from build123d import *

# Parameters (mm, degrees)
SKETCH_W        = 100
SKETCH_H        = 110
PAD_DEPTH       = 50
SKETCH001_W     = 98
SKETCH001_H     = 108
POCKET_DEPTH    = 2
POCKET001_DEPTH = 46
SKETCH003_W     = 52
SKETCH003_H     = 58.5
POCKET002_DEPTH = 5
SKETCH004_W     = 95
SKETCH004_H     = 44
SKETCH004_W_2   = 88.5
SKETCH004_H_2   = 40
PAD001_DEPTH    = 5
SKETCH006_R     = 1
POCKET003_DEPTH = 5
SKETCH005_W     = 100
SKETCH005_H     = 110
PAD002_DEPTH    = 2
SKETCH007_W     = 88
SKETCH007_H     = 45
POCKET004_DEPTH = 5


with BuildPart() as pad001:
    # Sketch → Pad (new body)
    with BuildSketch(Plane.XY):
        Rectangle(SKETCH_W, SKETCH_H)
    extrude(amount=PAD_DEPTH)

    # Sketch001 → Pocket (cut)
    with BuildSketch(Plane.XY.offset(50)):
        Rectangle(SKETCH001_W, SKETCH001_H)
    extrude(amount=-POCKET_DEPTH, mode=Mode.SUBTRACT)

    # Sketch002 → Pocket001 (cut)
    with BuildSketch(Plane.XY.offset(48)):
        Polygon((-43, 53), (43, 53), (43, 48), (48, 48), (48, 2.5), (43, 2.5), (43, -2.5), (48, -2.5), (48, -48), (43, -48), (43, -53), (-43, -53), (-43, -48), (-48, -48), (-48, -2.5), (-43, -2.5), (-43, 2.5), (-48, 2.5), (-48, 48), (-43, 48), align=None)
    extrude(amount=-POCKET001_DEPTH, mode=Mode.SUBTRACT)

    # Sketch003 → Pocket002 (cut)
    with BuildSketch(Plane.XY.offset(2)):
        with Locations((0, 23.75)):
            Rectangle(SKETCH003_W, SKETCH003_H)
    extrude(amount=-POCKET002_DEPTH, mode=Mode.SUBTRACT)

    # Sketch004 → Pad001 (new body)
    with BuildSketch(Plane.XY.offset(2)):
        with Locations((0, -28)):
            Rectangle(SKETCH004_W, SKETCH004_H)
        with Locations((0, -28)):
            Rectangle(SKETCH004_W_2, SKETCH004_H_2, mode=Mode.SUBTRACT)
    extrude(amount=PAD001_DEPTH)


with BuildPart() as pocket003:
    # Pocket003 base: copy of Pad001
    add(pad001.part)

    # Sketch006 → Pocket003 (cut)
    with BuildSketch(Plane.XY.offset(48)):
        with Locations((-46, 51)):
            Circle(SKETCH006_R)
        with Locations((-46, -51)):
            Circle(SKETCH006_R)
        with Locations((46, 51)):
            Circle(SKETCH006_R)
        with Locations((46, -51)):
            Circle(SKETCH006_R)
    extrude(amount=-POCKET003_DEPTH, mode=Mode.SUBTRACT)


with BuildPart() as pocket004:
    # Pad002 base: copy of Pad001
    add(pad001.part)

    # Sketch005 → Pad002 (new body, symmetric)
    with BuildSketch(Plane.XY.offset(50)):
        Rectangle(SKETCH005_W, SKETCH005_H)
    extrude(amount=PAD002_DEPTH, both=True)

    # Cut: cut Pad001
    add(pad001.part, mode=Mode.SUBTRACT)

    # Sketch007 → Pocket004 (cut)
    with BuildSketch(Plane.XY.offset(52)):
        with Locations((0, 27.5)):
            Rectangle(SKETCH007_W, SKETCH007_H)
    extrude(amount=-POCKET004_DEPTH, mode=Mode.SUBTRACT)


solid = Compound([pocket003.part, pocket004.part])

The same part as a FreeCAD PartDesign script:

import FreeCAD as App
import Part
import Sketcher

doc = App.newDocument("Part")
body = doc.addObject("PartDesign::Body", "Body")

# Sketch on XY plane
sketch1 = body.newObject("Sketcher::SketchObject", "Sketch")
sketch1.AttachmentSupport = (doc.getObject("XY_Plane"), [""])
sketch1.MapMode = "FlatFace"
sketch1.addGeometry([
    Part.LineSegment(App.Vector(-50, 55, 0), App.Vector(-50, -55, 0)),
    Part.LineSegment(App.Vector(-50, -55, 0), App.Vector(50, -55, 0)),
    Part.LineSegment(App.Vector(50, -55, 0), App.Vector(50, 55, 0)),
    Part.LineSegment(App.Vector(50, 55, 0), App.Vector(-50, 55, 0)),
], False)
sketch1.addConstraint([
    Sketcher.Constraint("Coincident", 0, 2, 1, 1),
    Sketcher.Constraint("Coincident", 1, 2, 2, 1),
    Sketcher.Constraint("Coincident", 2, 2, 3, 1),
    Sketcher.Constraint("Coincident", 3, 2, 0, 1),
    Sketcher.Constraint("Vertical", 0),
    Sketcher.Constraint("Horizontal", 1),
    Sketcher.Constraint("Vertical", 2),
    Sketcher.Constraint("Horizontal", 3),
    Sketcher.Constraint("Symmetric", 0, 2, 2, 2, -1, 1),
    Sketcher.Constraint("DistanceX", 1, 1, 1, 2, 100.0),
    Sketcher.Constraint("DistanceY", 0, 2, 0, 1, 110.0),
])
pad1 = body.newObject("PartDesign::Pad", "Pad")
pad1.Profile = sketch1
pad1.Length = 50

# Sketch on XY plane
sketch2 = body.newObject("Sketcher::SketchObject", "Sketch001")
sketch2.AttachmentSupport = (doc.getObject("XY_Plane"), [""])
sketch2.MapMode = "FlatFace"
sketch2.AttachmentOffset = App.Placement(App.Vector(0, 0, 50), App.Rotation())
sketch2.addGeometry([
    Part.LineSegment(App.Vector(-49, 54, 0), App.Vector(-49, -54, 0)),
    Part.LineSegment(App.Vector(-49, -54, 0), App.Vector(49, -54, 0)),
    Part.LineSegment(App.Vector(49, -54, 0), App.Vector(49, 54, 0)),
    Part.LineSegment(App.Vector(49, 54, 0), App.Vector(-49, 54, 0)),
], False)
sketch2.addConstraint([
    Sketcher.Constraint("Coincident", 0, 2, 1, 1),
    Sketcher.Constraint("Coincident", 1, 2, 2, 1),
    Sketcher.Constraint("Coincident", 2, 2, 3, 1),
    Sketcher.Constraint("Coincident", 3, 2, 0, 1),
    Sketcher.Constraint("Vertical", 0),
    Sketcher.Constraint("Horizontal", 1),
    Sketcher.Constraint("Vertical", 2),
    Sketcher.Constraint("Horizontal", 3),
    Sketcher.Constraint("Symmetric", 0, 2, 2, 2, -1, 1),
    Sketcher.Constraint("DistanceX", 1, 1, 1, 2, 98.0),
    Sketcher.Constraint("DistanceY", 0, 2, 0, 1, 108.0),
])
pocket1 = body.newObject("PartDesign::Pocket", "Pocket")
pocket1.Profile = sketch2
pocket1.Length = 2

# Sketch on XY plane
sketch3 = body.newObject("Sketcher::SketchObject", "Sketch002")
sketch3.AttachmentSupport = (doc.getObject("XY_Plane"), [""])
sketch3.MapMode = "FlatFace"
sketch3.AttachmentOffset = App.Placement(App.Vector(0, 0, 48), App.Rotation())
sketch3.addGeometry([
    Part.LineSegment(App.Vector(43, 53, 0), App.Vector(-43, 53, 0)),  # 0
    Part.LineSegment(App.Vector(-43, 53, 0), App.Vector(-43, 48, 0)),  # 1
    Part.LineSegment(App.Vector(-43, 48, 0), App.Vector(-48, 48, 0)),  # 2
    Part.LineSegment(App.Vector(-48, 48, 0), App.Vector(-48, 2.5, 0)),  # 3
    Part.LineSegment(App.Vector(-48, 2.5, 0), App.Vector(-43, 2.5, 0)),  # 4
    Part.LineSegment(App.Vector(-43, 2.5, 0), App.Vector(-43, -2.5, 0)),  # 5
    Part.LineSegment(App.Vector(-43, -2.5, 0), App.Vector(-48, -2.5, 0)),  # 6
    Part.LineSegment(App.Vector(-48, -2.5, 0), App.Vector(-48, -48, 0)),  # 7
    Part.LineSegment(App.Vector(-48, -48, 0), App.Vector(-43, -48, 0)),  # 8
    Part.LineSegment(App.Vector(-43, -48, 0), App.Vector(-43, -53, 0)),  # 9
    Part.LineSegment(App.Vector(-43, -53, 0), App.Vector(43, -53, 0)),  # 10
    Part.LineSegment(App.Vector(43, -53, 0), App.Vector(43, -48, 0)),  # 11
    Part.LineSegment(App.Vector(43, -48, 0), App.Vector(48, -48, 0)),  # 12
    Part.LineSegment(App.Vector(48, -48, 0), App.Vector(48, -2.5, 0)),  # 13
    Part.LineSegment(App.Vector(48, -2.5, 0), App.Vector(43, -2.5, 0)),  # 14
    Part.LineSegment(App.Vector(43, -2.5, 0), App.Vector(43, 2.5, 0)),  # 15
    Part.LineSegment(App.Vector(43, 2.5, 0), App.Vector(48, 2.5, 0)),  # 16
    Part.LineSegment(App.Vector(48, 2.5, 0), App.Vector(48, 48, 0)),  # 17
    Part.LineSegment(App.Vector(48, 48, 0), App.Vector(43, 48, 0)),  # 18
    Part.LineSegment(App.Vector(43, 48, 0), App.Vector(43, 53, 0)),  # 19
], False)
sketch3.addConstraint([
    Sketcher.Constraint("Coincident", 0, 2, 1, 1),
    Sketcher.Constraint("Coincident", 1, 2, 2, 1),
    Sketcher.Constraint("Coincident", 2, 2, 3, 1),
    Sketcher.Constraint("Coincident", 3, 2, 4, 1),
    Sketcher.Constraint("Coincident", 4, 2, 5, 1),
    Sketcher.Constraint("Coincident", 5, 2, 6, 1),
    Sketcher.Constraint("Coincident", 6, 2, 7, 1),
    Sketcher.Constraint("Coincident", 7, 2, 8, 1),
    Sketcher.Constraint("Coincident", 8, 2, 9, 1),
    Sketcher.Constraint("Coincident", 9, 2, 10, 1),
    Sketcher.Constraint("Coincident", 10, 2, 11, 1),
    Sketcher.Constraint("Coincident", 11, 2, 12, 1),
    Sketcher.Constraint("Coincident", 12, 2, 13, 1),
    Sketcher.Constraint("Coincident", 13, 2, 14, 1),
    Sketcher.Constraint("Coincident", 14, 2, 15, 1),
    Sketcher.Constraint("Coincident", 15, 2, 16, 1),
    Sketcher.Constraint("Coincident", 16, 2, 17, 1),
    Sketcher.Constraint("Coincident", 17, 2, 18, 1),
    Sketcher.Constraint("Coincident", 18, 2, 19, 1),
    Sketcher.Constraint("Coincident", 19, 2, 0, 1),
    Sketcher.Constraint("Horizontal", 0),
    Sketcher.Constraint("Vertical", 1),
    Sketcher.Constraint("Horizontal", 2),
    Sketcher.Constraint("Vertical", 3),
    Sketcher.Constraint("Horizontal", 4),
    Sketcher.Constraint("Vertical", 5),
    Sketcher.Constraint("Horizontal", 6),
    Sketcher.Constraint("Vertical", 7),
    Sketcher.Constraint("Horizontal", 8),
    Sketcher.Constraint("Vertical", 9),
    Sketcher.Constraint("Horizontal", 10),
    Sketcher.Constraint("Vertical", 11),
    Sketcher.Constraint("Horizontal", 12),
    Sketcher.Constraint("Vertical", 13),
    Sketcher.Constraint("Horizontal", 14),
    Sketcher.Constraint("Vertical", 15),
    Sketcher.Constraint("Horizontal", 16),
    Sketcher.Constraint("Vertical", 17),
    Sketcher.Constraint("Horizontal", 18),
    Sketcher.Constraint("Vertical", 19),
    Sketcher.Constraint("Symmetric", 0, 2, 10, 2, -1, 1),
    Sketcher.Constraint("Symmetric", 2, 2, 12, 2, -1, 1),
    Sketcher.Constraint("Symmetric", 4, 2, 14, 2, -1, 1),
    Sketcher.Constraint("Symmetric", 6, 2, 16, 2, -1, 1),
    Sketcher.Constraint("Symmetric", 8, 2, 18, 2, -1, 1),
    Sketcher.Constraint("Symmetric", 8, 2, 11, 2, -2),
    Sketcher.Constraint("Symmetric", 6, 2, 13, 2, -2),
    Sketcher.Constraint("Vertical", 1, 2, 4, 2),
    Sketcher.Constraint("Equal", 18, 1),
    Sketcher.Constraint("Equal", 1, 5),
    Sketcher.Constraint("DistanceX", 0, 2, 0, 1, 86.0),
    Sketcher.Constraint("DistanceX", 2, 2, 2, 1, 5.0),
    Sketcher.Constraint("DistanceY", 3, 2, 3, 1, 45.5),
])
pocket2 = body.newObject("PartDesign::Pocket", "Pocket001")
pocket2.Profile = sketch3
pocket2.Length = 46

# Sketch on XY plane
sketch4 = body.newObject("Sketcher::SketchObject", "Sketch003")
sketch4.AttachmentSupport = (doc.getObject("XY_Plane"), [""])
sketch4.MapMode = "FlatFace"
sketch4.AttachmentOffset = App.Placement(App.Vector(0, 0, 2), App.Rotation())
sketch4.addGeometry([
    Part.LineSegment(App.Vector(-26, 53, 0), App.Vector(-26, -5.5, 0)),
    Part.LineSegment(App.Vector(-26, -5.5, 0), App.Vector(26, -5.5, 0)),
    Part.LineSegment(App.Vector(26, -5.5, 0), App.Vector(26, 53, 0)),
    Part.LineSegment(App.Vector(26, 53, 0), App.Vector(-26, 53, 0)),
], False)
sketch4.addConstraint([
    Sketcher.Constraint("Coincident", 0, 2, 1, 1),
    Sketcher.Constraint("Coincident", 1, 2, 2, 1),
    Sketcher.Constraint("Coincident", 2, 2, 3, 1),
    Sketcher.Constraint("Coincident", 3, 2, 0, 1),
    Sketcher.Constraint("Vertical", 0),
    Sketcher.Constraint("Horizontal", 1),
    Sketcher.Constraint("Vertical", 2),
    Sketcher.Constraint("Horizontal", 3),
    Sketcher.Constraint("DistanceX", 1, 1, 1, 2, 52.0),
    Sketcher.Constraint("DistanceY", 0, 2, 0, 1, 58.5),
    Sketcher.Constraint("DistanceX", 0, 2, -1, 1, 26.0),
    Sketcher.Constraint("DistanceY", -1, 1, 2, 2, 53.0),
])
pocket3 = body.newObject("PartDesign::Pocket", "Pocket002")
pocket3.Profile = sketch4
pocket3.Length = 5

# Sketch on XY plane
sketch5 = body.newObject("Sketcher::SketchObject", "Sketch004")
sketch5.AttachmentSupport = (doc.getObject("XY_Plane"), [""])
sketch5.MapMode = "FlatFace"
sketch5.AttachmentOffset = App.Placement(App.Vector(0, 0, 2), App.Rotation())
sketch5.addGeometry([
    Part.LineSegment(App.Vector(-47.5, -6, 0), App.Vector(-47.5, -50, 0)),  # 0
    Part.LineSegment(App.Vector(-47.5, -50, 0), App.Vector(47.5, -50, 0)),  # 1
    Part.LineSegment(App.Vector(47.5, -50, 0), App.Vector(47.5, -6, 0)),  # 2
    Part.LineSegment(App.Vector(47.5, -6, 0), App.Vector(-47.5, -6, 0)),  # 3
    Part.LineSegment(App.Vector(44.25, -48, 0), App.Vector(-44.25, -48, 0)),  # 4
    Part.LineSegment(App.Vector(-44.25, -48, 0), App.Vector(-44.25, -8, 0)),  # 5
    Part.LineSegment(App.Vector(-44.25, -8, 0), App.Vector(44.25, -8, 0)),  # 6
    Part.LineSegment(App.Vector(44.25, -8, 0), App.Vector(44.25, -48, 0)),  # 7
], False)
sketch5.addConstraint([
    Sketcher.Constraint("Coincident", 0, 2, 1, 1),
    Sketcher.Constraint("Coincident", 1, 2, 2, 1),
    Sketcher.Constraint("Coincident", 2, 2, 3, 1),
    Sketcher.Constraint("Coincident", 3, 2, 0, 1),
    Sketcher.Constraint("Coincident", 4, 2, 5, 1),
    Sketcher.Constraint("Coincident", 5, 2, 6, 1),
    Sketcher.Constraint("Coincident", 6, 2, 7, 1),
    Sketcher.Constraint("Coincident", 7, 2, 4, 1),
    Sketcher.Constraint("Vertical", 0),
    Sketcher.Constraint("Horizontal", 1),
    Sketcher.Constraint("Vertical", 2),
    Sketcher.Constraint("Horizontal", 3),
    Sketcher.Constraint("Horizontal", 4),
    Sketcher.Constraint("Vertical", 5),
    Sketcher.Constraint("Horizontal", 6),
    Sketcher.Constraint("Vertical", 7),
    Sketcher.Constraint("DistanceX", 1, 1, 1, 2, 95.0),
    Sketcher.Constraint("DistanceY", 0, 2, 0, 1, 44.0),
    Sketcher.Constraint("DistanceY", 5, 1, 5, 2, 40.0),
    Sketcher.Constraint("DistanceX", 4, 2, 4, 1, 88.5),
    Sketcher.Constraint("DistanceY", 0, 2, -1, 1, 50.0),
    Sketcher.Constraint("DistanceY", 4, 2, -1, 1, 48.0),
    Sketcher.Constraint("DistanceX", 0, 2, -1, 1, 47.5),
    Sketcher.Constraint("DistanceX", 4, 2, -1, 1, 44.25),
])
pad2 = body.newObject("PartDesign::Pad", "Pad001")
pad2.Profile = sketch5
pad2.Length = 5
body2 = doc.addObject("PartDesign::Body", "Body001")
doc.recompute()

body2.BaseFeature = body
doc.recompute()

# Sketch on XY plane
sketch6 = body2.newObject("Sketcher::SketchObject", "Sketch005")
sketch6.AttachmentSupport = (doc.getObject("XY_Plane001"), [""])
sketch6.MapMode = "FlatFace"
sketch6.AttachmentOffset = App.Placement(App.Vector(0, 0, 48), App.Rotation())
sketch6.addGeometry([
    Part.Circle(App.Vector(-46, 51, 0), App.Vector(0, 0, 1), 1),
    Part.Circle(App.Vector(-46, -51, 0), App.Vector(0, 0, 1), 1),
    Part.Circle(App.Vector(46, 51, 0), App.Vector(0, 0, 1), 1),
    Part.Circle(App.Vector(46, -51, 0), App.Vector(0, 0, 1), 1),
], False)
sketch6.addConstraint([
    Sketcher.Constraint("Equal", 0, 1),
    Sketcher.Constraint("Equal", 1, 2),
    Sketcher.Constraint("Equal", 2, 3),
    Sketcher.Constraint("Symmetric", 1, 3, 2, 3, -1, 1),
    Sketcher.Constraint("Symmetric", 0, 3, 3, 3, -1, 1),
    Sketcher.Constraint("Symmetric", 0, 3, 2, 3, -2),
    Sketcher.Constraint("Diameter", 0, 2.0),
    Sketcher.Constraint("DistanceX", 0, 3, -1, 1, 46.0),
    Sketcher.Constraint("DistanceY", -1, 1, 0, 3, 51.0),
])
pocket4 = body2.newObject("PartDesign::Pocket", "Pocket003")
pocket4.Profile = sketch6
pocket4.Length = 5
body3 = doc.addObject("PartDesign::Body", "Body002")
doc.recompute()

body3.BaseFeature = body
doc.recompute()

# Sketch on XY plane
sketch7 = body3.newObject("Sketcher::SketchObject", "Sketch006")
sketch7.AttachmentSupport = (doc.getObject("XY_Plane002"), [""])
sketch7.MapMode = "FlatFace"
sketch7.AttachmentOffset = App.Placement(App.Vector(0, 0, 50), App.Rotation())
sketch7.addGeometry([
    Part.LineSegment(App.Vector(-50, 55, 0), App.Vector(-50, -55, 0)),
    Part.LineSegment(App.Vector(-50, -55, 0), App.Vector(50, -55, 0)),
    Part.LineSegment(App.Vector(50, -55, 0), App.Vector(50, 55, 0)),
    Part.LineSegment(App.Vector(50, 55, 0), App.Vector(-50, 55, 0)),
], False)
sketch7.addConstraint([
    Sketcher.Constraint("Coincident", 0, 2, 1, 1),
    Sketcher.Constraint("Coincident", 1, 2, 2, 1),
    Sketcher.Constraint("Coincident", 2, 2, 3, 1),
    Sketcher.Constraint("Coincident", 3, 2, 0, 1),
    Sketcher.Constraint("Vertical", 0),
    Sketcher.Constraint("Horizontal", 1),
    Sketcher.Constraint("Vertical", 2),
    Sketcher.Constraint("Horizontal", 3),
    Sketcher.Constraint("Symmetric", 0, 2, 2, 2, -1, 1),
    Sketcher.Constraint("DistanceX", 1, 1, 1, 2, 100.0),
    Sketcher.Constraint("DistanceY", 0, 2, 0, 1, 110.0),
])
pad3 = body3.newObject("PartDesign::Pad", "Pad002")
pad3.Profile = sketch7
pad3.Length = 4
pad3.Midplane = True
doc.recompute()

boolean = body3.newObject("PartDesign::Boolean", "Boolean")
boolean.Type = "Cut"
boolean.addObjects([body])

# Sketch on XY plane
sketch8 = body3.newObject("Sketcher::SketchObject", "Sketch007")
sketch8.AttachmentSupport = (doc.getObject("XY_Plane002"), [""])
sketch8.MapMode = "FlatFace"
sketch8.AttachmentOffset = App.Placement(App.Vector(0, 0, 52), App.Rotation())
sketch8.addGeometry([
    Part.LineSegment(App.Vector(-44, 50, 0), App.Vector(-44, 5, 0)),
    Part.LineSegment(App.Vector(-44, 5, 0), App.Vector(44, 5, 0)),
    Part.LineSegment(App.Vector(44, 5, 0), App.Vector(44, 50, 0)),
    Part.LineSegment(App.Vector(44, 50, 0), App.Vector(-44, 50, 0)),
], False)
sketch8.addConstraint([
    Sketcher.Constraint("Coincident", 0, 2, 1, 1),
    Sketcher.Constraint("Coincident", 1, 2, 2, 1),
    Sketcher.Constraint("Coincident", 2, 2, 3, 1),
    Sketcher.Constraint("Coincident", 3, 2, 0, 1),
    Sketcher.Constraint("Vertical", 0),
    Sketcher.Constraint("Horizontal", 1),
    Sketcher.Constraint("Vertical", 2),
    Sketcher.Constraint("Horizontal", 3),
    Sketcher.Constraint("DistanceX", 1, 1, 1, 2, 88.0),
    Sketcher.Constraint("DistanceY", 0, 2, 0, 1, 45.0),
    Sketcher.Constraint("DistanceX", 0, 2, -1, 1, 44.0),
    Sketcher.Constraint("DistanceY", -1, 1, 0, 2, 5.0),
])
pocket5 = body3.newObject("PartDesign::Pocket", "Pocket004")
pocket5.Profile = sketch8
pocket5.Length = 5

doc.recompute()
